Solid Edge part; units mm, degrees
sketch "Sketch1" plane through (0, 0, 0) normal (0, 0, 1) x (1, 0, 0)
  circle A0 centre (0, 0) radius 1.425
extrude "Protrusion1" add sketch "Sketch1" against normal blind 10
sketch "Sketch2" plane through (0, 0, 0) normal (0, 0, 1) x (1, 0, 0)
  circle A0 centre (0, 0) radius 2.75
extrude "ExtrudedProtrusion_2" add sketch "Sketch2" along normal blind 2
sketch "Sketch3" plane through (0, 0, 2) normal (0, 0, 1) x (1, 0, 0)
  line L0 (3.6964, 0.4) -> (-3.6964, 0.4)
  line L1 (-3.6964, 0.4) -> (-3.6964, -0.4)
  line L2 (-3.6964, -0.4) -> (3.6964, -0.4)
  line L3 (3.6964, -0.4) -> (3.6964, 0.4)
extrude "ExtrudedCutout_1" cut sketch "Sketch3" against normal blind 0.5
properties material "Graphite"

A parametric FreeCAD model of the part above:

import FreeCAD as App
import Part
import Sketcher
from FreeCAD import Vector
Q = App.Units.Quantity

doc = App.newDocument("Part")
body = doc.addObject("PartDesign::Body", "Body")

# Sketch on XY plane
sketch1 = body.newObject("Sketcher::SketchObject", "Sketch")
sketch1.AttachmentSupport = (doc.getObject("XY_Plane"), [""])
sketch1.MapMode = "FlatFace"
sketch1.addGeometry(Part.Circle(Vector(0, 0, 0), Vector(0, 0, 1), 1.425), False)
sketch1.addConstraint(Sketcher.Constraint("Coincident", 0, 3, -1, 1))
sketch1.addConstraint(Sketcher.Constraint("Diameter", 0, Q("2.85 mm")))
pad1 = body.newObject("PartDesign::Pad", "Pad")
pad1.Profile = sketch1
pad1.Length = 10
pad1.Reversed = True

# Sketch on XY plane
sketch2 = body.newObject("Sketcher::SketchObject", "Sketch001")
sketch2.AttachmentSupport = (doc.getObject("XY_Plane"), [""])
sketch2.MapMode = "FlatFace"
sketch2.addGeometry(Part.Circle(Vector(0, 0, 0), Vector(0, 0, 1), 2.75), False)
sketch2.addConstraint(Sketcher.Constraint("Coincident", 0, 3, -1, 1))
sketch2.addConstraint(Sketcher.Constraint("Diameter", 0, Q("5.5 mm")))
pad2 = body.newObject("PartDesign::Pad", "Pad001")
pad2.Profile = sketch2
pad2.Length = 2

# Sketch on XY plane
sketch3 = body.newObject("Sketcher::SketchObject", "Sketch002")
sketch3.AttachmentSupport = (doc.getObject("XY_Plane"), [""])
sketch3.MapMode = "FlatFace"
sketch3.AttachmentOffset = App.Placement(Vector(0, 0, 2), App.Rotation())
sketch3.addGeometry(Part.LineSegment(Vector(3.6964, -0.4, 0), Vector(3.6964, 0.4, 0)), False)
sketch3.addGeometry(Part.LineSegment(Vector(3.6964, 0.4, 0), Vector(-3.6964, 0.4, 0)), False)
sketch3.addGeometry(Part.LineSegment(Vector(-3.6964, 0.4, 0), Vector(-3.6964, -0.4, 0)), False)
sketch3.addGeometry(Part.LineSegment(Vector(-3.6964, -0.4, 0), Vector(3.6964, -0.4, 0)), False)
sketch3.addConstraint(Sketcher.Constraint("Coincident", 0, 2, 1, 1))
sketch3.addConstraint(Sketcher.Constraint("Coincident", 1, 2, 2, 1))
sketch3.addConstraint(Sketcher.Constraint("Coincident", 2, 2, 3, 1))
sketch3.addConstraint(Sketcher.Constraint("Coincident", 3, 2, 0, 1))
sketch3.addConstraint(Sketcher.Constraint("Vertical", 0))
sketch3.addConstraint(Sketcher.Constraint("Horizontal", 1))
sketch3.addConstraint(Sketcher.Constraint("Vertical", 2))
sketch3.addConstraint(Sketcher.Constraint("Horizontal", 3))
sketch3.addConstraint(Sketcher.Constraint("Symmetric", 0, 2, 2, 2, -1, 1))
sketch3.addConstraint(Sketcher.Constraint("DistanceY", 0, 1, 0, 2, Q("0.8 mm")))
sketch3.addConstraint(Sketcher.Constraint("DistanceX", 1, 2, 1, 1, Q("7.3928 mm")))
pocket1 = body.newObject("PartDesign::Pocket", "Pocket")
pocket1.Profile = sketch3
pocket1.Length = 0.5

doc.recompute()
